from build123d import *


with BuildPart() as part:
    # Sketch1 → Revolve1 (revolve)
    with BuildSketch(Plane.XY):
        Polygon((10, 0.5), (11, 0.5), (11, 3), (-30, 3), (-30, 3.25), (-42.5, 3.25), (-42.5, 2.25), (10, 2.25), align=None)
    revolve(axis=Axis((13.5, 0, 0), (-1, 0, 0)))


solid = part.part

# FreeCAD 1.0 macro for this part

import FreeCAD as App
import Part
import Sketcher
from FreeCAD import Vector


def add_polygon(sketch, points):
    """Adds a closed chain of lines whose ends are joined by coincident constraints."""
    first, n = sketch.GeometryCount, len(points)
    for a, b in zip(points, points[1:] + points[:1]):
        sketch.addGeometry(Part.LineSegment(App.Vector(*a, 0), App.Vector(*b, 0)), False)
    for i in range(n):
        sketch.addConstraint(Sketcher.Constraint("Coincident", first + i, 2, first + (i + 1) % n, 1))

doc = App.newDocument("Part")
body = doc.addObject("PartDesign::Body", "Body")

# Sketch on XY plane
sketch1 = body.newObject("Sketcher::SketchObject", "Sketch")
sketch1.AttachmentSupport = (doc.getObject("XY_Plane"), [""])
sketch1.MapMode = "FlatFace"
add_polygon(sketch1, [(10, 0.5), (11, 0.5), (11, 3), (-30, 3), (-30, 3.25), (-42.5, 3.25), (-42.5, 2.25), (10, 2.25)])  # lines 0-7
sketch1.addConstraint([
    Sketcher.Constraint("Horizontal", 0),
    Sketcher.Constraint("Vertical", 1),
    Sketcher.Constraint("Horizontal", 2),
    Sketcher.Constraint("Vertical", 3),
    Sketcher.Constraint("Horizontal", 4),
    Sketcher.Constraint("Vertical", 5),
    Sketcher.Constraint("Horizontal", 6),
    Sketcher.Constraint("Vertical", 7),
    Sketcher.Constraint("Equal", 0, 5),
    Sketcher.Constraint("DistanceX", 0, 1, 0, 2, 1.0),
    Sketcher.Constraint("DistanceX", 2, 2, 2, 1, 41.0),
    Sketcher.Constraint("DistanceX", 4, 2, 4, 1, 12.5),
    Sketcher.Constraint("DistanceY", 1, 1, 1, 2, 2.5),
    Sketcher.Constraint("DistanceX", -1, 1, 0, 2, 11.0),
    Sketcher.Constraint("DistanceY", -1, 1, 1, 2, 3.0),
    Sketcher.Constraint("DistanceY", 3, 1, 3, 2, 0.25),
])
revolution = body.newObject("PartDesign::Revolution", "Revolution")
revolution.Profile = sketch1
revolution.ReferenceAxis = (sketch1, ["H_Axis"])
revolution.Angle = 360

doc.recompute()
